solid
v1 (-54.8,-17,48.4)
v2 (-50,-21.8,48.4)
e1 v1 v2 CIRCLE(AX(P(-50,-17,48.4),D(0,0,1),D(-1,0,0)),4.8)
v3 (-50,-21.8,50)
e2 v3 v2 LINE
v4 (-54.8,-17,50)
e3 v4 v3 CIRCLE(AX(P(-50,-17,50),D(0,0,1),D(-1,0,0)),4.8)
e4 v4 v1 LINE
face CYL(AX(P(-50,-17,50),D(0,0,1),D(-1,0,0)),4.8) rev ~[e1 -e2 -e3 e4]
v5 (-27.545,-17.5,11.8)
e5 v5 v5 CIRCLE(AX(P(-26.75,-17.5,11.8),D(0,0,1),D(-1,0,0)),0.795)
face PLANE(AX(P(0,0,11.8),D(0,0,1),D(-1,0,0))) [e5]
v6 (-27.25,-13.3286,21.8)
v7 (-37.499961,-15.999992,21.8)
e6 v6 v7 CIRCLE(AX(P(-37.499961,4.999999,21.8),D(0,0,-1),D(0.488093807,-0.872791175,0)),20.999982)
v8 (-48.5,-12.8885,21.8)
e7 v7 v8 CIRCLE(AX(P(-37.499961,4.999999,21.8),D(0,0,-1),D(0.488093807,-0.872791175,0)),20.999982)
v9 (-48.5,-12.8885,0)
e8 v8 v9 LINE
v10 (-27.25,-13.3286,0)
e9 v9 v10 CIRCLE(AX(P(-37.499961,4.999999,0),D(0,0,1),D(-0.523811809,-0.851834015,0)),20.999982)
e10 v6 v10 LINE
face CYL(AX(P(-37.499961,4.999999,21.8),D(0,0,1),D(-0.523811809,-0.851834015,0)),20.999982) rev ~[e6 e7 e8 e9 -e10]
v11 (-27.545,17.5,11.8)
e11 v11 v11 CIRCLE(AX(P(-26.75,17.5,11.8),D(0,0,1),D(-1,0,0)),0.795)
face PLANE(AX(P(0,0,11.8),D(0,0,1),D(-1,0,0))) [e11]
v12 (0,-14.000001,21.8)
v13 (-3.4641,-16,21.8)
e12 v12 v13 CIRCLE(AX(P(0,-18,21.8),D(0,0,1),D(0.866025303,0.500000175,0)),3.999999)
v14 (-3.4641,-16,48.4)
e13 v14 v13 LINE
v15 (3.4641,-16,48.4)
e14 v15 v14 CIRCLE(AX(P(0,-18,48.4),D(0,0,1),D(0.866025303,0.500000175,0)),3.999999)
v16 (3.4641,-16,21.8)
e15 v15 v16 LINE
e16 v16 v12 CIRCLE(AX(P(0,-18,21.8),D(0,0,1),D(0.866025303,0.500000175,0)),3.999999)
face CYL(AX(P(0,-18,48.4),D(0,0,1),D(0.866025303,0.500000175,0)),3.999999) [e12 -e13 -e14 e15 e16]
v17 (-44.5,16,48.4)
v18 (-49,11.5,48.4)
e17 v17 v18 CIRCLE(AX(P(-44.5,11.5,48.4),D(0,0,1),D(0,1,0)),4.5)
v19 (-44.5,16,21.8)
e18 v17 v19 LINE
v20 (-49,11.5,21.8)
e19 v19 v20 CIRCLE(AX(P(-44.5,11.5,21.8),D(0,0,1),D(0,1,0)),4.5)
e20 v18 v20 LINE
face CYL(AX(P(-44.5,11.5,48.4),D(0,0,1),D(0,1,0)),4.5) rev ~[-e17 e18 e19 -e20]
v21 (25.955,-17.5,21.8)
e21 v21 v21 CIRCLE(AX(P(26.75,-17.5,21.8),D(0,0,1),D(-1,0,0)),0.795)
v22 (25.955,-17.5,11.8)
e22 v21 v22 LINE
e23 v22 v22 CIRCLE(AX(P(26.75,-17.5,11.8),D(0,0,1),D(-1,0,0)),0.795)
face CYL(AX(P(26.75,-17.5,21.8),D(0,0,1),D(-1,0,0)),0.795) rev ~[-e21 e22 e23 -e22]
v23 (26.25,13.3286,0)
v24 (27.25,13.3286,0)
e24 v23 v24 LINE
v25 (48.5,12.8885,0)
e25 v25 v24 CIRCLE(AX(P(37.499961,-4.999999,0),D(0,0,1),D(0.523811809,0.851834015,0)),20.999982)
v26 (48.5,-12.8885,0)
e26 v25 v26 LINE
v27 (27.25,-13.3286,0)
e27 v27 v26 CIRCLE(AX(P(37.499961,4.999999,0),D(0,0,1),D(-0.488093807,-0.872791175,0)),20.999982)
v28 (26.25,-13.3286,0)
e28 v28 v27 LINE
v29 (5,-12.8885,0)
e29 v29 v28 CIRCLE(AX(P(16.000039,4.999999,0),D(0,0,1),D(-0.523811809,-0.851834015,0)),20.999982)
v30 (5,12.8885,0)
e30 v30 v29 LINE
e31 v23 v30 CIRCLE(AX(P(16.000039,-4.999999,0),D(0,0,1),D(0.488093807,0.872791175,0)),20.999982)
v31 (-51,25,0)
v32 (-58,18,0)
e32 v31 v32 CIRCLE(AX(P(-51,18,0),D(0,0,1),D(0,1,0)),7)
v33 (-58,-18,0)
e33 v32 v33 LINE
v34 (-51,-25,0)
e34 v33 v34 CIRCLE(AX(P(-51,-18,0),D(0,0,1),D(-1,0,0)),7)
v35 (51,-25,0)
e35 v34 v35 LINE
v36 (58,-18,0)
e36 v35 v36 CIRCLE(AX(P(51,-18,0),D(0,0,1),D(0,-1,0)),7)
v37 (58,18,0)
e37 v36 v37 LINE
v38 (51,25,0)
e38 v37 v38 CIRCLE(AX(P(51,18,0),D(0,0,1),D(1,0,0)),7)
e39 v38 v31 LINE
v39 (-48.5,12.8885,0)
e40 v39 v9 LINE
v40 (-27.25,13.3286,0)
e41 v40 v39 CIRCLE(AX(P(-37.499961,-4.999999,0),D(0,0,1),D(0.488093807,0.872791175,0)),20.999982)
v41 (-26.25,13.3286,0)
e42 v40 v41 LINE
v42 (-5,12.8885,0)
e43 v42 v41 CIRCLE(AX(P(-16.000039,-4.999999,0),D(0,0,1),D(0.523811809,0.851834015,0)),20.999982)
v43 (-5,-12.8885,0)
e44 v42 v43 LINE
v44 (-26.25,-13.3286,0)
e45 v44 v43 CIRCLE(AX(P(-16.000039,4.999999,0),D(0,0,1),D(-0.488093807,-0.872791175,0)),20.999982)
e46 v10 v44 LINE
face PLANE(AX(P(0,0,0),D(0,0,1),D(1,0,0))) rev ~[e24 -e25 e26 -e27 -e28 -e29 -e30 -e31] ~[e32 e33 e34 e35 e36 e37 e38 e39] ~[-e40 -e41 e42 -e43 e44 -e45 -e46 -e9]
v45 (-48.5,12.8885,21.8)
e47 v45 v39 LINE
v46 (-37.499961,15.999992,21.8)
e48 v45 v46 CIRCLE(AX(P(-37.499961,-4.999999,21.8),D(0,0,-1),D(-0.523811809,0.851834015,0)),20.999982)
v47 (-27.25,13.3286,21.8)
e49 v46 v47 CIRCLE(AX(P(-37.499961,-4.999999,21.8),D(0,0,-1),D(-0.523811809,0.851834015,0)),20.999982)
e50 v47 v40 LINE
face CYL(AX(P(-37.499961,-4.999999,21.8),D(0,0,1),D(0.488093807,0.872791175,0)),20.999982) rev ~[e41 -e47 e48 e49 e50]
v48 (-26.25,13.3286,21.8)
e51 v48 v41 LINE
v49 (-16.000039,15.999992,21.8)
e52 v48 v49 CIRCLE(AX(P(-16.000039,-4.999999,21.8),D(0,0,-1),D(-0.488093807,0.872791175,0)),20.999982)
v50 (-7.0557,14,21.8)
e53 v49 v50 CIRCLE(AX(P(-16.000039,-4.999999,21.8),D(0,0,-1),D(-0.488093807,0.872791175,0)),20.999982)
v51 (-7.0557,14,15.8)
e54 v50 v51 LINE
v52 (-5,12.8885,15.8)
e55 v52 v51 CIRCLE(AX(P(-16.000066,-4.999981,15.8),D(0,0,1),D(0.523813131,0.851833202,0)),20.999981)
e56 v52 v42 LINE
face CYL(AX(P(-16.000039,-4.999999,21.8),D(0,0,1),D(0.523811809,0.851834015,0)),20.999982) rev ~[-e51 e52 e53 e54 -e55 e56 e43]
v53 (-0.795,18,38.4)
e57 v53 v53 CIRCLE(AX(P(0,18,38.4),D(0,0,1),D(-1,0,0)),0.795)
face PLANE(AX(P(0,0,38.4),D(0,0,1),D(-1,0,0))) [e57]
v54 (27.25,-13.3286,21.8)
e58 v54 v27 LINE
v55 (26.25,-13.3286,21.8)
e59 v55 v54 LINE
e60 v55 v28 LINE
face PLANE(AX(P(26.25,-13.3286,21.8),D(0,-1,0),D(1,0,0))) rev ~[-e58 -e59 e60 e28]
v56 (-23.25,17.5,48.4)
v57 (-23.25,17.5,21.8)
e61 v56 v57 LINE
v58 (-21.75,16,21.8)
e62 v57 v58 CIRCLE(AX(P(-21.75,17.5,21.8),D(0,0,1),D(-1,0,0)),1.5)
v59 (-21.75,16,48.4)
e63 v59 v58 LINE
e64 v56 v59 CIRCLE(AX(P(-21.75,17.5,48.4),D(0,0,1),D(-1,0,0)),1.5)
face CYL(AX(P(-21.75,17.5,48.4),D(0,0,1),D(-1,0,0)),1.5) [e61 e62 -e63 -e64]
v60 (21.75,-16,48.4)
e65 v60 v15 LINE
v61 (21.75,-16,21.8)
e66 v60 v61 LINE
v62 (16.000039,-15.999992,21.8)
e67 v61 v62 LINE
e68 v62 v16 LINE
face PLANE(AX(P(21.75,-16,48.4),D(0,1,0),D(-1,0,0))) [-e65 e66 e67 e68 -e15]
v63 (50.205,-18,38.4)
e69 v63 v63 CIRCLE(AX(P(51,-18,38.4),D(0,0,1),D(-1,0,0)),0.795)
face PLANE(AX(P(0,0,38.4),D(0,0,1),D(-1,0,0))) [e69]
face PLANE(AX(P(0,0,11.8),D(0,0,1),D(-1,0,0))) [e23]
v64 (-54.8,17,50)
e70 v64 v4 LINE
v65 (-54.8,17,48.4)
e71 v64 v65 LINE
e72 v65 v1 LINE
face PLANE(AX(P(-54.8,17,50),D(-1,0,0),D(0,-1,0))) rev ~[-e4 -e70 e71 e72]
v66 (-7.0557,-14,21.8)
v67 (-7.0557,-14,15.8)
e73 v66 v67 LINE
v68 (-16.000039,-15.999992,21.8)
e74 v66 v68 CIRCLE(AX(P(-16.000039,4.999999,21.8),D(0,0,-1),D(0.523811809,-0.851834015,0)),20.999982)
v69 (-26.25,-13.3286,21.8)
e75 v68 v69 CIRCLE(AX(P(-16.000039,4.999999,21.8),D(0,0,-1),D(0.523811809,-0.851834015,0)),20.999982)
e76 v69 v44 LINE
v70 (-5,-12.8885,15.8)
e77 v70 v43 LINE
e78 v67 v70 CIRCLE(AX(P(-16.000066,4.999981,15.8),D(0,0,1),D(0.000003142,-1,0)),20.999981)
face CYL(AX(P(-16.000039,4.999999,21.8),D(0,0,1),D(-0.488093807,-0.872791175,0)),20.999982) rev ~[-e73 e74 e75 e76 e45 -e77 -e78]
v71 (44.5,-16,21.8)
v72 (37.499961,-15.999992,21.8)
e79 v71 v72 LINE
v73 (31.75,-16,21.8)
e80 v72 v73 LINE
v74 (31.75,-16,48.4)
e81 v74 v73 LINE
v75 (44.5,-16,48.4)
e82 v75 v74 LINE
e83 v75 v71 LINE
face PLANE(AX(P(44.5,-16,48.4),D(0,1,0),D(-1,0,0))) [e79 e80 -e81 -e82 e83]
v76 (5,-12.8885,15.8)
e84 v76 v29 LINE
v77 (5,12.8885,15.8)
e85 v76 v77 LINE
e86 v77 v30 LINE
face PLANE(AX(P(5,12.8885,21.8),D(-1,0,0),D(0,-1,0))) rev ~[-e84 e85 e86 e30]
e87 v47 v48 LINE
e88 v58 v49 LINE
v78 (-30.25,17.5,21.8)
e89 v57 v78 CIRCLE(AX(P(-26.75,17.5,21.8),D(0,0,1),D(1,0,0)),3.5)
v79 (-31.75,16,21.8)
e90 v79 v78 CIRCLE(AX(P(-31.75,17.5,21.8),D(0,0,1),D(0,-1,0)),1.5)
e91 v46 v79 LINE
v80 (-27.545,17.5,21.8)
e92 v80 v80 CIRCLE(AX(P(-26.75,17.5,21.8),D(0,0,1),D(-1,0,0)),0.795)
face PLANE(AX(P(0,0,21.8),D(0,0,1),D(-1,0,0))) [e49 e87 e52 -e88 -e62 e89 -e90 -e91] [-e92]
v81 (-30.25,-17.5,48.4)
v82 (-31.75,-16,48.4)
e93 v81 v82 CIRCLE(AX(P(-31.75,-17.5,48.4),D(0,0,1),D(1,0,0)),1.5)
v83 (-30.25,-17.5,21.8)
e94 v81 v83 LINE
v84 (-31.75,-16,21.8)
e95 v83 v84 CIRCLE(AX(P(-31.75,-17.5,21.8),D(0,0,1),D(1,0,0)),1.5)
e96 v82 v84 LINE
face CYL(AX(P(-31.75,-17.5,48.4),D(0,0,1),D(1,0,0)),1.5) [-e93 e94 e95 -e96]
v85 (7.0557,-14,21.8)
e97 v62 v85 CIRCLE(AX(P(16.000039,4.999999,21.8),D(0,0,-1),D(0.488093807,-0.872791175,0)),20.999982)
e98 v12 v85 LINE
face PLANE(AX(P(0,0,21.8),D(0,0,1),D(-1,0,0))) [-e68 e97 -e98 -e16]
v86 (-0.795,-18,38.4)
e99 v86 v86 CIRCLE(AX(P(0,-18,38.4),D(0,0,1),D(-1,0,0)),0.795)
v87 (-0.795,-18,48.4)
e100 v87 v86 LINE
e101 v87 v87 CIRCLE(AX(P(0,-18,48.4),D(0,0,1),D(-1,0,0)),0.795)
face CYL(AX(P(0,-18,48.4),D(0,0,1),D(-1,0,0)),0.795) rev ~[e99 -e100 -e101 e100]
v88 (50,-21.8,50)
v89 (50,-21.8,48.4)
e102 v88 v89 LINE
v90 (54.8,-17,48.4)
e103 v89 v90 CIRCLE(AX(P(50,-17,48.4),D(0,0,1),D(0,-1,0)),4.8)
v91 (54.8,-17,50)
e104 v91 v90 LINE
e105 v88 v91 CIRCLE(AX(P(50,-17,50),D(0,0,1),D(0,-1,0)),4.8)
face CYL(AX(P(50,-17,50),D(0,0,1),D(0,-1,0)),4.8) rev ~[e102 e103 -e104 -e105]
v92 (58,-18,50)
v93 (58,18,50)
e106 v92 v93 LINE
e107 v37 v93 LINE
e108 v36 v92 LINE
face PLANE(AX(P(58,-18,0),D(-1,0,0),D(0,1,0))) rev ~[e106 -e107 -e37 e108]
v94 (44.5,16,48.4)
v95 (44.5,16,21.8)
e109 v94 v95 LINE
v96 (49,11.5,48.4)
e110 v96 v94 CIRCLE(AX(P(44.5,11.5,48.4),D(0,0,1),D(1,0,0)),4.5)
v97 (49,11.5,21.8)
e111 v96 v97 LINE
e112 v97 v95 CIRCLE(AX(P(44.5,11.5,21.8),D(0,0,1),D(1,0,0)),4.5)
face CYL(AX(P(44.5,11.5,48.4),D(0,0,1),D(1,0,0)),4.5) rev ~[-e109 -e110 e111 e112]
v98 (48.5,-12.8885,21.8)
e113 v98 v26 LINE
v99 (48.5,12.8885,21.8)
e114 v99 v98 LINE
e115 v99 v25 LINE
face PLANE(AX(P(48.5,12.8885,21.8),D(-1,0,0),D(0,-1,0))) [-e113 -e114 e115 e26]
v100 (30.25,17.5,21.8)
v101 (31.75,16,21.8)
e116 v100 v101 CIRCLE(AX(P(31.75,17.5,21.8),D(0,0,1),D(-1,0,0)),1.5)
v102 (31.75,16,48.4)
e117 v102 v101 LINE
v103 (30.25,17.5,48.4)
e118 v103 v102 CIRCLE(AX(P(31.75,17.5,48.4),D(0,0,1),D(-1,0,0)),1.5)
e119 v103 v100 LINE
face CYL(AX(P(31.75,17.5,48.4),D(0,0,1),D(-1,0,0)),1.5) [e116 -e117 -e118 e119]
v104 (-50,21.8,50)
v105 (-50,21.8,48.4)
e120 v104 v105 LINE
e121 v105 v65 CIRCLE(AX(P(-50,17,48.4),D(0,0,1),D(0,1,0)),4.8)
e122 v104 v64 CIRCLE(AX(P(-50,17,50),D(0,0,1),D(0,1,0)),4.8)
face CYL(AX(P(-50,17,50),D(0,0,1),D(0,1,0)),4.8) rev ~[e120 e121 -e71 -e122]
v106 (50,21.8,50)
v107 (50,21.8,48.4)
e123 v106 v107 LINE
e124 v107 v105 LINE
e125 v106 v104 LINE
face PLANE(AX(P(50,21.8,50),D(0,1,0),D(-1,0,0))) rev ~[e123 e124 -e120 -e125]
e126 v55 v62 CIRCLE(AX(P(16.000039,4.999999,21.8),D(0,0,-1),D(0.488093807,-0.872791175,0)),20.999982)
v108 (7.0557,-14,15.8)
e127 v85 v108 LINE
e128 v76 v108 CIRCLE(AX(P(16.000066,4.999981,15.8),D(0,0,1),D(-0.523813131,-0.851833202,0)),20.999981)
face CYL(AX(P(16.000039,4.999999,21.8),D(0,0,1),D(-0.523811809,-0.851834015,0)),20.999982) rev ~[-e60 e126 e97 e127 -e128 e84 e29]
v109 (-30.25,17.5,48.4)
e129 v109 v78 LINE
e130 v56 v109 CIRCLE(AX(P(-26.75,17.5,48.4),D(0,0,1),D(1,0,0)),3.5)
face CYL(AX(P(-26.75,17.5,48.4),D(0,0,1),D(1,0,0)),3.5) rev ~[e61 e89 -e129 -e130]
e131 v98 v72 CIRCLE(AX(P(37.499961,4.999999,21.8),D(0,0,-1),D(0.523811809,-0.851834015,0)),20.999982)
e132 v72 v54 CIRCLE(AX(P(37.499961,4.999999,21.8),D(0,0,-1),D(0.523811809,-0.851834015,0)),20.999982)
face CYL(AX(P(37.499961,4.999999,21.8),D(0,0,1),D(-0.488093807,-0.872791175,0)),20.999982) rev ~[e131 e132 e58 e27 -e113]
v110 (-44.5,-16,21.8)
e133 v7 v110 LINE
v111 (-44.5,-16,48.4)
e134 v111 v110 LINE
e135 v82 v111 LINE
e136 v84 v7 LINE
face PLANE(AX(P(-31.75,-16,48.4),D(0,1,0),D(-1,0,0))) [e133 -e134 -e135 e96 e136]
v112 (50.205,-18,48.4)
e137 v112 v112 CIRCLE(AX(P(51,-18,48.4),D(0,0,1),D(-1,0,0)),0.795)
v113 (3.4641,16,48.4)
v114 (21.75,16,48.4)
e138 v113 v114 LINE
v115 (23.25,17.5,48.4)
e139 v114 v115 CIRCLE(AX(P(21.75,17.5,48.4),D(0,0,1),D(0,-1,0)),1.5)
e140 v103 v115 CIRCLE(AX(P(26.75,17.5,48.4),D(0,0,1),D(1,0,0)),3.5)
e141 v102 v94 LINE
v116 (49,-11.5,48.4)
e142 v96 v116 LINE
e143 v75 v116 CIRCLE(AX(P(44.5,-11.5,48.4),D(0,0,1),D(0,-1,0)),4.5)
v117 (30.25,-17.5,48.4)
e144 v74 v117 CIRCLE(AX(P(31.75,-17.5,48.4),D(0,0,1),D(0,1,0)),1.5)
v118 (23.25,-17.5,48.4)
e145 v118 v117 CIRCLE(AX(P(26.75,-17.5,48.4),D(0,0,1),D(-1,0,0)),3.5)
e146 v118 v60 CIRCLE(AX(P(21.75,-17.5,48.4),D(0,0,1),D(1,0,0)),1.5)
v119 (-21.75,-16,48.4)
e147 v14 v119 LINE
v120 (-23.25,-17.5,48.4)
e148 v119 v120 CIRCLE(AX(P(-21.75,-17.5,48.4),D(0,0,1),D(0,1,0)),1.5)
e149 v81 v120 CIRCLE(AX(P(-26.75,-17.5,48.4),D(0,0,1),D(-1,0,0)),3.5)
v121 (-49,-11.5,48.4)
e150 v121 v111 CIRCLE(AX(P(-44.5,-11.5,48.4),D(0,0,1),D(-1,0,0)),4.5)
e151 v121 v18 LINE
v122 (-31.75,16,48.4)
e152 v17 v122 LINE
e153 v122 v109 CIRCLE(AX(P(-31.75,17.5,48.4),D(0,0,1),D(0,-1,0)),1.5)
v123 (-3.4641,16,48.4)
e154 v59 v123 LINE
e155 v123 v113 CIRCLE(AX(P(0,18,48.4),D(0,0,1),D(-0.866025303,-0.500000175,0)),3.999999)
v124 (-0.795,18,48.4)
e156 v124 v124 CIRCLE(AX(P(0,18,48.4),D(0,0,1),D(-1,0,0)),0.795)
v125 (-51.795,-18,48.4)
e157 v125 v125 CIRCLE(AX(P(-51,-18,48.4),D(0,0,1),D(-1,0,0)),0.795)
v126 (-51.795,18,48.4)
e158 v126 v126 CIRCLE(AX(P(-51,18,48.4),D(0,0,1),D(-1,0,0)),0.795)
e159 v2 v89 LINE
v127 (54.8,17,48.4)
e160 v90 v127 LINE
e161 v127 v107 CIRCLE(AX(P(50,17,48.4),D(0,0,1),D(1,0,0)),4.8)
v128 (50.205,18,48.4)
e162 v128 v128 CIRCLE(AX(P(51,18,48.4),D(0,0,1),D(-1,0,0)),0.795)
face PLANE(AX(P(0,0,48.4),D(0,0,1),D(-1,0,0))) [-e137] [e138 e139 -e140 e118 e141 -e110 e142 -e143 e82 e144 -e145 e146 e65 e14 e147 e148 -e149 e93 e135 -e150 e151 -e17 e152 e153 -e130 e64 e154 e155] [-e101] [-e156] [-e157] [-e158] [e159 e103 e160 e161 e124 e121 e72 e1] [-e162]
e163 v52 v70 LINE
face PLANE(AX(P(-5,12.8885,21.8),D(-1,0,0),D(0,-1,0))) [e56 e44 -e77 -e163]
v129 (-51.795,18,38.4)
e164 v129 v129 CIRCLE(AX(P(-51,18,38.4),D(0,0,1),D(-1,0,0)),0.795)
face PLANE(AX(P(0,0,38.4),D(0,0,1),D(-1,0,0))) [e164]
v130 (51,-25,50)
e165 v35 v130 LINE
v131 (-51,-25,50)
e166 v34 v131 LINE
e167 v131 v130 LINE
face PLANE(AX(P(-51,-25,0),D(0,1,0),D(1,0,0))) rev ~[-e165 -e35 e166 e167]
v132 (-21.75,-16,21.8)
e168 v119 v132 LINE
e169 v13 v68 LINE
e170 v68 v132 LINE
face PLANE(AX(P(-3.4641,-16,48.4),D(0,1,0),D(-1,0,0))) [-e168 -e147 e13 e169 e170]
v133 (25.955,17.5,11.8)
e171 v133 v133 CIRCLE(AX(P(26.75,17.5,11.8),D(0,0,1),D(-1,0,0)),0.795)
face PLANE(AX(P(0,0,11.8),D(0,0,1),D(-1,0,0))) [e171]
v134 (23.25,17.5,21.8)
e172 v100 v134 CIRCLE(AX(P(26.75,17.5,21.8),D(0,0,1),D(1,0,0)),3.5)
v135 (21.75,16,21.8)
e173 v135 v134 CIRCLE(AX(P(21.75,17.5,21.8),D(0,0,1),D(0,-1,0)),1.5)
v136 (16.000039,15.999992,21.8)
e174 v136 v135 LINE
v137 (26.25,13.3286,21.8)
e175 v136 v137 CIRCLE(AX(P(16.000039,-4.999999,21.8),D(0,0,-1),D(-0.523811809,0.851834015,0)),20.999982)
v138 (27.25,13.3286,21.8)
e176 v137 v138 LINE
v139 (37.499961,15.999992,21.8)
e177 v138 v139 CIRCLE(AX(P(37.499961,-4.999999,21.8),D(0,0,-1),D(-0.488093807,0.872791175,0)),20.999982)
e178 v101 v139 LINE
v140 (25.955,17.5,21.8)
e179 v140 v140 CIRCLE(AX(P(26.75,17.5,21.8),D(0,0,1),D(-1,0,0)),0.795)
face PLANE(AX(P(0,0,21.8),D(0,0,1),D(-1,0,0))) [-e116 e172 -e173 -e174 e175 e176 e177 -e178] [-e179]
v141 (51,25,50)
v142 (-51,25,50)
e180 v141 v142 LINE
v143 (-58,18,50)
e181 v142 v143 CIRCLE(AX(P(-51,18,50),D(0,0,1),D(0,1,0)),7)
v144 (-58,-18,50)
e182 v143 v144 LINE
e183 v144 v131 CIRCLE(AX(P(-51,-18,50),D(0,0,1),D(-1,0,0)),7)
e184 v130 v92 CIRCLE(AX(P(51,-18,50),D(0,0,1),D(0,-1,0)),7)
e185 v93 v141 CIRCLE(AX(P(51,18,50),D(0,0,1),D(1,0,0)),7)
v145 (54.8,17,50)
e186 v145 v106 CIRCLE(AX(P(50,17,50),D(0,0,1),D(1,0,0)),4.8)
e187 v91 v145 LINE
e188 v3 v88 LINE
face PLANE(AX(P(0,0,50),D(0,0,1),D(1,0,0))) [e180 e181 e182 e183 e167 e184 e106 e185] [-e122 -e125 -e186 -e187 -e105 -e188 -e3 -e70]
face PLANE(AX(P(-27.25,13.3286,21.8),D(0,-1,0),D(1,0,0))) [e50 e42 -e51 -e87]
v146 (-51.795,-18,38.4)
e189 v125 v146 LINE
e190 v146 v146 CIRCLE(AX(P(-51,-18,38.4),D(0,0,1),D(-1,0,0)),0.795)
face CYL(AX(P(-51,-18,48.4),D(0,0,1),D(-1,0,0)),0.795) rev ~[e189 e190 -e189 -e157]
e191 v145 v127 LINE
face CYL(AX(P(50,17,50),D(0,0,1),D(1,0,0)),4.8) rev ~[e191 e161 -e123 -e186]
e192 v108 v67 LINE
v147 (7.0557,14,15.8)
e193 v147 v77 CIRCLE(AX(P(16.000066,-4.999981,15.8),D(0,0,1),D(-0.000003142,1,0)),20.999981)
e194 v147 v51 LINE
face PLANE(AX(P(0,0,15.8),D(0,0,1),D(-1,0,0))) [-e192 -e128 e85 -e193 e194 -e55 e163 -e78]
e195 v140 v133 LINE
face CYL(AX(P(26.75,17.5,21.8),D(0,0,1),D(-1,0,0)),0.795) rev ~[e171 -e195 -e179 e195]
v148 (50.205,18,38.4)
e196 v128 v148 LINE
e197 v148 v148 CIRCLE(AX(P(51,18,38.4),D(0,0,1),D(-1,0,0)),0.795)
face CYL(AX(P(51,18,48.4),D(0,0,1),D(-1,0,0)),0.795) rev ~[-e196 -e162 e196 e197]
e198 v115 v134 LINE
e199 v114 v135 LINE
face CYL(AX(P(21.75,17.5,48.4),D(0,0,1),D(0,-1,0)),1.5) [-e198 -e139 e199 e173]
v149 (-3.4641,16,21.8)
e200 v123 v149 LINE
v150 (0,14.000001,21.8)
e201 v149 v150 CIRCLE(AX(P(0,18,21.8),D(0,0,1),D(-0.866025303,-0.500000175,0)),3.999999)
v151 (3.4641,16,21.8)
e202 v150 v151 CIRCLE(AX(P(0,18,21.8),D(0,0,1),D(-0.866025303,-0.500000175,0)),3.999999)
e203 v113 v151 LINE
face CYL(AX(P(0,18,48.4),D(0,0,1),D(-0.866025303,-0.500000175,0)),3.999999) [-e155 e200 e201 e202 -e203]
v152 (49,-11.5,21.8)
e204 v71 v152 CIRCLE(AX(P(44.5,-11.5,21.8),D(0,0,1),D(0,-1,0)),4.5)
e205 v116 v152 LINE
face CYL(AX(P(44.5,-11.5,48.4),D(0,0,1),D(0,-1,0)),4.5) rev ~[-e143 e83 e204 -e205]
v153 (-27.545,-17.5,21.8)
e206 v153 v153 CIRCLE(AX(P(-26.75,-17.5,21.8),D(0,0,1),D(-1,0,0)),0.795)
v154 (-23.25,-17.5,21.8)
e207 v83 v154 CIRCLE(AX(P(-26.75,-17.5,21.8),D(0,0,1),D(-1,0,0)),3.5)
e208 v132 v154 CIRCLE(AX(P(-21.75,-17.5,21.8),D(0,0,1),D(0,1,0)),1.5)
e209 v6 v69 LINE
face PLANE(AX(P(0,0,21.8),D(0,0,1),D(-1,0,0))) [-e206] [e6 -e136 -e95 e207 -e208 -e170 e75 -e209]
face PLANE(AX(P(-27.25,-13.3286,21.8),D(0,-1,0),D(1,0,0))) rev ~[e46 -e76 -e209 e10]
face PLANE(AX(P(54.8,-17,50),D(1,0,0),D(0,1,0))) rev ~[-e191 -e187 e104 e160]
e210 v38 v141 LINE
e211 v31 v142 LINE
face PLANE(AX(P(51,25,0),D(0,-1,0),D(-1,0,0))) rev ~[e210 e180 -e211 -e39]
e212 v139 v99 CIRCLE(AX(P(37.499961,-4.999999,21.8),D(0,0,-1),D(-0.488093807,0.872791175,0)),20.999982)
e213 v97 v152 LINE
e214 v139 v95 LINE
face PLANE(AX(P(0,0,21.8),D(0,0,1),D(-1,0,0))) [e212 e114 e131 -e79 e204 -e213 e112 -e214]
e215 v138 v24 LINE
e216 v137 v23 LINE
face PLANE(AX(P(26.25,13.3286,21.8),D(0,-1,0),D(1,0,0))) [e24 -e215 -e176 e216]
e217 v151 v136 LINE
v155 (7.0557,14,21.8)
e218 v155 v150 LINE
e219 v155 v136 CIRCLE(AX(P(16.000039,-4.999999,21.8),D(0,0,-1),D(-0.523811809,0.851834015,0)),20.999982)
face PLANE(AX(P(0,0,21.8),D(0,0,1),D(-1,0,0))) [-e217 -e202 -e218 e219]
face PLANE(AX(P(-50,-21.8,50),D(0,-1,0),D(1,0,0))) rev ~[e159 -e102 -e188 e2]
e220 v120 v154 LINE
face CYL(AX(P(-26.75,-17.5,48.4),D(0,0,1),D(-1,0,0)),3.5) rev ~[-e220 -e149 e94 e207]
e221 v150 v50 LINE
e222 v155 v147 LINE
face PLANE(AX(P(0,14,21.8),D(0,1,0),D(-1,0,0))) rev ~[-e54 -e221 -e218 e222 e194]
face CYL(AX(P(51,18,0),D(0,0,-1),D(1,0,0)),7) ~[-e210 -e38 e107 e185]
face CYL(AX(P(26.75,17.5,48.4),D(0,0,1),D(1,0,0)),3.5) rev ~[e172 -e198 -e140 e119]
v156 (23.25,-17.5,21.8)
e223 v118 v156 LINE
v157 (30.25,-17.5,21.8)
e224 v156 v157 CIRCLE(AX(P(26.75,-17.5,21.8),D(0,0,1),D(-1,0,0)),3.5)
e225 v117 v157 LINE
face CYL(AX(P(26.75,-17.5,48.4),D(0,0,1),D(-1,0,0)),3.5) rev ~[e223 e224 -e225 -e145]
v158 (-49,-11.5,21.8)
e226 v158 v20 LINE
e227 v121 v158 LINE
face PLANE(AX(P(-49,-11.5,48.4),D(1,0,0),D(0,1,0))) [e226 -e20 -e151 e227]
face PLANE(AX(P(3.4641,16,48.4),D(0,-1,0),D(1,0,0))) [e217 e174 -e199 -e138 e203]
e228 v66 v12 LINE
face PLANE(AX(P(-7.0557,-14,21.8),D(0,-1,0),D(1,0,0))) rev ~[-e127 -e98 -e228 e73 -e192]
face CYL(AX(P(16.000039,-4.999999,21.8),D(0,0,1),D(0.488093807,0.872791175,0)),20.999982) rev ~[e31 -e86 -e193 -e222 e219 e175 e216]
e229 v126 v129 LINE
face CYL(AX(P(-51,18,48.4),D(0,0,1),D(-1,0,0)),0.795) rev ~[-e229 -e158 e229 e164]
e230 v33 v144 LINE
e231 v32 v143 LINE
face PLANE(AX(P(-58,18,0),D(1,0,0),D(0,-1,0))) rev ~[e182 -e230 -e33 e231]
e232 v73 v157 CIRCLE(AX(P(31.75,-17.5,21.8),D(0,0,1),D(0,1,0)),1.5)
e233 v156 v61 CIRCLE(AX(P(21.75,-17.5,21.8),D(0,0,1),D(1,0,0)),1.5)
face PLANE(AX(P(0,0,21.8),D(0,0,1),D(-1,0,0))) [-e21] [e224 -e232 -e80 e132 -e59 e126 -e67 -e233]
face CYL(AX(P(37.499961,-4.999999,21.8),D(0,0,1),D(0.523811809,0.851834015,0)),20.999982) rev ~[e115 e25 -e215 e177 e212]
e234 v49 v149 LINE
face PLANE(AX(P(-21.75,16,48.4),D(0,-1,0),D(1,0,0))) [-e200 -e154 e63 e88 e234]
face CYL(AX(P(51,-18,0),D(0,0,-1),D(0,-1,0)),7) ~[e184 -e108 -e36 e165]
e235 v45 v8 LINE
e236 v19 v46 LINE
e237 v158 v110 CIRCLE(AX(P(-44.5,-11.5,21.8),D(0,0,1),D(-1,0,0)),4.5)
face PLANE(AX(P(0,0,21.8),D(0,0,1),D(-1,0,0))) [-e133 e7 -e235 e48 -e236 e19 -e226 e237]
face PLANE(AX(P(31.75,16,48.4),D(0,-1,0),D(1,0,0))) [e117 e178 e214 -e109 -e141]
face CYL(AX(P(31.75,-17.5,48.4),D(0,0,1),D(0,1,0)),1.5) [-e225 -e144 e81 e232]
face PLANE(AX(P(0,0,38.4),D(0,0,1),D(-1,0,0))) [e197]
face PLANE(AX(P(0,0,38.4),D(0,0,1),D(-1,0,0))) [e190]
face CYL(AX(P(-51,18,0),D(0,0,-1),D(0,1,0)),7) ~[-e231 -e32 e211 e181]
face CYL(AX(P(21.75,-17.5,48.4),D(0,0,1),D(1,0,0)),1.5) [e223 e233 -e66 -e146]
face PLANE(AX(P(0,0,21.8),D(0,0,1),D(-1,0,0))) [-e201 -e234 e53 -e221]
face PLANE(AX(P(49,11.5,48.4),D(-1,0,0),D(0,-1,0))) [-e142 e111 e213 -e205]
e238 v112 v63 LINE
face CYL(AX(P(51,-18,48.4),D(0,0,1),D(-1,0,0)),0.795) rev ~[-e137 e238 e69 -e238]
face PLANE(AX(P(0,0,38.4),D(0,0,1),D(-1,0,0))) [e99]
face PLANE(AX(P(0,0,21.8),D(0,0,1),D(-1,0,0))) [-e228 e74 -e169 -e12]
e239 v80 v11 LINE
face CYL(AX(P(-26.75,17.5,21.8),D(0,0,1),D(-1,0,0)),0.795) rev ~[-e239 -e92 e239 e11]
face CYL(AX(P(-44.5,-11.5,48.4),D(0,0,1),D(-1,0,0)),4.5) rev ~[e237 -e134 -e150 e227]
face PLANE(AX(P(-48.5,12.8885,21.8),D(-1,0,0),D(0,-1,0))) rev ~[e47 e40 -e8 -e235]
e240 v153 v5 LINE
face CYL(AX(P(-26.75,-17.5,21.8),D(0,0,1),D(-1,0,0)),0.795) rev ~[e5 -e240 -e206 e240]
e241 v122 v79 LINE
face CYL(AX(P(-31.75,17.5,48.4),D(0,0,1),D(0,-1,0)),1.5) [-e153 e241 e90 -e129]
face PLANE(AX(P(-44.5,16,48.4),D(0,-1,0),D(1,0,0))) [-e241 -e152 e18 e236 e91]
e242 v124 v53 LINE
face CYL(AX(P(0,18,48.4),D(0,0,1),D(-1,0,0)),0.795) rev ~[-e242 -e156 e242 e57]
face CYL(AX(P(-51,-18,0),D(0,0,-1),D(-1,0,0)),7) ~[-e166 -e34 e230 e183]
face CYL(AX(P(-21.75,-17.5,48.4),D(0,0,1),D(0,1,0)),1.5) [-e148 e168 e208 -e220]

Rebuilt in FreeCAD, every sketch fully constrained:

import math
import FreeCAD as App
import Part
import Sketcher

doc = App.newDocument("Part")
body = doc.addObject("PartDesign::Body", "Body")

# Sketch on XY plane
sketch1 = body.newObject("Sketcher::SketchObject", "Sketch")
sketch1.AttachmentSupport = (doc.getObject("XY_Plane"), [""])
sketch1.MapMode = "FlatFace"
sketch1.addGeometry(Part.ArcOfCircle(Part.Circle(App.Vector(51, 18, 0), App.Vector(0, 0, 1), 7), math.radians(0), math.radians(90)), False)
sketch1.addGeometry(Part.LineSegment(App.Vector(51, 25, 0), App.Vector(-51, 25, 0)), False)
sketch1.addGeometry(Part.ArcOfCircle(Part.Circle(App.Vector(-51, 18, 0), App.Vector(0, 0, 1), 7), math.radians(90), math.radians(180)), False)
sketch1.addGeometry(Part.LineSegment(App.Vector(-58, 18, 0), App.Vector(-58, -18, 0)), False)
sketch1.addGeometry(Part.ArcOfCircle(Part.Circle(App.Vector(-51, -18, 0), App.Vector(0, 0, 1), 7), math.radians(180), math.radians(270)), False)
sketch1.addGeometry(Part.LineSegment(App.Vector(-51, -25, 0), App.Vector(51, -25, 0)), False)
sketch1.addGeometry(Part.ArcOfCircle(Part.Circle(App.Vector(51, -18, 0), App.Vector(0, 0, 1), 7), math.radians(-90), math.radians(0)), False)
sketch1.addGeometry(Part.LineSegment(App.Vector(58, -18, 0), App.Vector(58, 18, 0)), False)
sketch1.addConstraint(Sketcher.Constraint("Tangent", 0, 2, 1, 1))
sketch1.addConstraint(Sketcher.Constraint("Tangent", 1, 2, 2, 1))
sketch1.addConstraint(Sketcher.Constraint("Tangent", 2, 2, 3, 1))
sketch1.addConstraint(Sketcher.Constraint("Tangent", 3, 2, 4, 1))
sketch1.addConstraint(Sketcher.Constraint("Tangent", 4, 2, 5, 1))
sketch1.addConstraint(Sketcher.Constraint("Tangent", 5, 2, 6, 1))
sketch1.addConstraint(Sketcher.Constraint("Tangent", 6, 2, 7, 1))
sketch1.addConstraint(Sketcher.Constraint("Tangent", 7, 2, 0, 1))
sketch1.addConstraint(Sketcher.Constraint("Horizontal", 1))
sketch1.addConstraint(Sketcher.Constraint("Vertical", 3))
sketch1.addConstraint(Sketcher.Constraint("Horizontal", 5))
sketch1.addConstraint(Sketcher.Constraint("Vertical", 7))
sketch1.addConstraint(Sketcher.Constraint("Equal", 0, 2))
sketch1.addConstraint(Sketcher.Constraint("Equal", 2, 4))
sketch1.addConstraint(Sketcher.Constraint("Equal", 4, 6))
sketch1.addConstraint(Sketcher.Constraint("Symmetric", 0, 3, 4, 3, -1, 1))
sketch1.addConstraint(Sketcher.Constraint("Radius", 0, 7.0))
sketch1.addConstraint(Sketcher.Constraint("DistanceY", 4, 2, 1, 2, 50.0))
sketch1.addConstraint(Sketcher.Constraint("DistanceX", 1, 2, 1, 1, 102.0))
pad1 = body.newObject("PartDesign::Pad", "Pad")
pad1.Profile = sketch1
pad1.Length = 50

# Sketch on XY plane
sketch2 = body.newObject("Sketcher::SketchObject", "Sketch001")
sketch2.AttachmentSupport = (doc.getObject("XY_Plane"), [""])
sketch2.MapMode = "FlatFace"
sketch2.AttachmentOffset = App.Placement(App.Vector(0, 0, 50), App.Rotation())
sketch2.addGeometry(Part.ArcOfCircle(Part.Circle(App.Vector(50, 17, 0), App.Vector(0, 0, 1), 4.8), math.radians(0), math.radians(90)), False)
sketch2.addGeometry(Part.LineSegment(App.Vector(50, 21.8, 0), App.Vector(-50, 21.8, 0)), False)
sketch2.addGeometry(Part.ArcOfCircle(Part.Circle(App.Vector(-50, 17, 0), App.Vector(0, 0, 1), 4.8), math.radians(90), math.radians(180)), False)
sketch2.addGeometry(Part.LineSegment(App.Vector(-54.8, 17, 0), App.Vector(-54.8, -17, 0)), False)
sketch2.addGeometry(Part.ArcOfCircle(Part.Circle(App.Vector(-50, -17, 0), App.Vector(0, 0, 1), 4.8), math.radians(180), math.radians(270)), False)
sketch2.addGeometry(Part.LineSegment(App.Vector(-50, -21.8, 0), App.Vector(50, -21.8, 0)), False)
sketch2.addGeometry(Part.ArcOfCircle(Part.Circle(App.Vector(50, -17, 0), App.Vector(0, 0, 1), 4.8), math.radians(-90), math.radians(0)), False)
sketch2.addGeometry(Part.LineSegment(App.Vector(54.8, -17, 0), App.Vector(54.8, 17, 0)), False)
sketch2.addConstraint(Sketcher.Constraint("Tangent", 0, 2, 1, 1))
sketch2.addConstraint(Sketcher.Constraint("Tangent", 1, 2, 2, 1))
sketch2.addConstraint(Sketcher.Constraint("Tangent", 2, 2, 3, 1))
sketch2.addConstraint(Sketcher.Constraint("Tangent", 3, 2, 4, 1))
sketch2.addConstraint(Sketcher.Constraint("Tangent", 4, 2, 5, 1))
sketch2.addConstraint(Sketcher.Constraint("Tangent", 5, 2, 6, 1))
sketch2.addConstraint(Sketcher.Constraint("Tangent", 6, 2, 7, 1))
sketch2.addConstraint(Sketcher.Constraint("Tangent", 7, 2, 0, 1))
sketch2.addConstraint(Sketcher.Constraint("Horizontal", 1))
sketch2.addConstraint(Sketcher.Constraint("Vertical", 3))
sketch2.addConstraint(Sketcher.Constraint("Horizontal", 5))
sketch2.addConstraint(Sketcher.Constraint("Vertical", 7))
sketch2.addConstraint(Sketcher.Constraint("Equal", 0, 2))
sketch2.addConstraint(Sketcher.Constraint("Equal", 2, 4))
sketch2.addConstraint(Sketcher.Constraint("Equal", 4, 6))
sketch2.addConstraint(Sketcher.Constraint("Symmetric", 0, 3, 4, 3, -1, 1))
sketch2.addConstraint(Sketcher.Constraint("Radius", 0, 4.8))
sketch2.addConstraint(Sketcher.Constraint("DistanceY", 4, 2, 1, 2, 43.6))
sketch2.addConstraint(Sketcher.Constraint("DistanceX", 1, 2, 1, 1, 100.0))
pocket1 = body.newObject("PartDesign::Pocket", "Pocket")
pocket1.Profile = sketch2
pocket1.Length = 1.6

# Sketch on XY plane
sketch3 = body.newObject("Sketcher::SketchObject", "Sketch002")
sketch3.AttachmentSupport = (doc.getObject("XY_Plane"), [""])
sketch3.MapMode = "FlatFace"
sketch3.AttachmentOffset = App.Placement(App.Vector(0, 0, 48.4), App.Rotation())
sketch3.addGeometry(Part.LineSegment(App.Vector(-49, 11.5, 0), App.Vector(-49, -11.5, 0)), False)
sketch3.addGeometry(Part.ArcOfCircle(Part.Circle(App.Vector(-44.5, -11.5, 0), App.Vector(0, 0, 1), 4.5), math.radians(180), math.radians(270)), False)
sketch3.addGeometry(Part.LineSegment(App.Vector(-44.5, -16, 0), App.Vector(-31.75, -16, 0)), False)
sketch3.addGeometry(Part.ArcOfCircle(Part.Circle(App.Vector(-31.75, -17.5, 0), App.Vector(0, 0, 1), 1.5), math.radians(0), math.radians(90)), False)
sketch3.addGeometry(Part.ArcOfCircle(Part.Circle(App.Vector(-26.75, -17.5, 0), App.Vector(0, 0, 1), 3.5), math.radians(180), math.radians(360)), False)
sketch3.addGeometry(Part.ArcOfCircle(Part.Circle(App.Vector(-21.75, -17.5, 0), App.Vector(0, 0, 1), 1.5), math.radians(90), math.radians(180)), False)
sketch3.addGeometry(Part.LineSegment(App.Vector(-21.75, -16, 0), App.Vector(-3.4641, -16, 0)), False)
sketch3.addGeometry(Part.ArcOfCircle(Part.Circle(App.Vector(0, -18, 0), App.Vector(0, 0, 1), 3.999999), math.radians(30.000012), math.radians(149.999988)), False)
sketch3.addGeometry(Part.LineSegment(App.Vector(3.4641, -16, 0), App.Vector(21.75, -16, 0)), False)
sketch3.addGeometry(Part.ArcOfCircle(Part.Circle(App.Vector(21.75, -17.5, 0), App.Vector(0, 0, 1), 1.5), math.radians(0), math.radians(90)), False)
sketch3.addGeometry(Part.ArcOfCircle(Part.Circle(App.Vector(26.75, -17.5, 0), App.Vector(0, 0, 1), 3.5), math.radians(180), math.radians(360)), False)
sketch3.addGeometry(Part.ArcOfCircle(Part.Circle(App.Vector(31.75, -17.5, 0), App.Vector(0, 0, 1), 1.5), math.radians(90), math.radians(180)), False)
sketch3.addGeometry(Part.LineSegment(App.Vector(31.75, -16, 0), App.Vector(44.5, -16, 0)), False)
sketch3.addGeometry(Part.ArcOfCircle(Part.Circle(App.Vector(44.5, -11.5, 0), App.Vector(0, 0, 1), 4.5), math.radians(-90), math.radians(0)), False)
sketch3.addGeometry(Part.LineSegment(App.Vector(49, -11.5, 0), App.Vector(49, 11.5, 0)), False)
sketch3.addGeometry(Part.ArcOfCircle(Part.Circle(App.Vector(44.5, 11.5, 0), App.Vector(0, 0, 1), 4.5), math.radians(0), math.radians(90)), False)
sketch3.addGeometry(Part.LineSegment(App.Vector(44.5, 16, 0), App.Vector(31.75, 16, 0)), False)
sketch3.addGeometry(Part.ArcOfCircle(Part.Circle(App.Vector(31.75, 17.5, 0), App.Vector(0, 0, 1), 1.5), math.radians(180), math.radians(270)), False)
sketch3.addGeometry(Part.ArcOfCircle(Part.Circle(App.Vector(26.75, 17.5, 0), App.Vector(0, 0, 1), 3.5), math.radians(0), math.radians(180)), False)
sketch3.addGeometry(Part.ArcOfCircle(Part.Circle(App.Vector(21.75, 17.5, 0), App.Vector(0, 0, 1), 1.5), math.radians(-90), math.radians(0)), False)
sketch3.addGeometry(Part.LineSegment(App.Vector(21.75, 16, 0), App.Vector(3.4641, 16, 0)), False)
sketch3.addGeometry(Part.ArcOfCircle(Part.Circle(App.Vector(0, 18, 0), App.Vector(0, 0, 1), 3.999999), math.radians(-149.999988), math.radians(-30.000012)), False)
sketch3.addGeometry(Part.LineSegment(App.Vector(-3.4641, 16, 0), App.Vector(-21.75, 16, 0)), False)
sketch3.addGeometry(Part.ArcOfCircle(Part.Circle(App.Vector(-21.75, 17.5, 0), App.Vector(0, 0, 1), 1.5), math.radians(180), math.radians(270)), False)
sketch3.addGeometry(Part.ArcOfCircle(Part.Circle(App.Vector(-26.75, 17.5, 0), App.Vector(0, 0, 1), 3.5), math.radians(0), math.radians(180)), False)
sketch3.addGeometry(Part.ArcOfCircle(Part.Circle(App.Vector(-31.75, 17.5, 0), App.Vector(0, 0, 1), 1.5), math.radians(-90), math.radians(0)), False)
sketch3.addGeometry(Part.LineSegment(App.Vector(-31.75, 16, 0), App.Vector(-44.5, 16, 0)), False)
sketch3.addGeometry(Part.ArcOfCircle(Part.Circle(App.Vector(-44.5, 11.5, 0), App.Vector(0, 0, 1), 4.5), math.radians(90), math.radians(180)), False)
sketch3.addConstraint(Sketcher.Constraint("Tangent", 0, 2, 1, 1))
sketch3.addConstraint(Sketcher.Constraint("Tangent", 1, 2, 2, 1))
sketch3.addConstraint(Sketcher.Constraint("Tangent", 2, 2, 3, 2))
sketch3.addConstraint(Sketcher.Constraint("Tangent", 3, 1, 4, 1))
sketch3.addConstraint(Sketcher.Constraint("Tangent", 4, 2, 5, 2))
sketch3.addConstraint(Sketcher.Constraint("Tangent", 5, 1, 6, 1))
sketch3.addConstraint(Sketcher.Constraint("Coincident", 6, 2, 7, 2))
sketch3.addConstraint(Sketcher.Constraint("Coincident", 7, 1, 8, 1))
sketch3.addConstraint(Sketcher.Constraint("Tangent", 8, 2, 9, 2))
sketch3.addConstraint(Sketcher.Constraint("Tangent", 9, 1, 10, 1))
sketch3.addConstraint(Sketcher.Constraint("Tangent", 10, 2, 11, 2))
sketch3.addConstraint(Sketcher.Constraint("Tangent", 11, 1, 12, 1))
sketch3.addConstraint(Sketcher.Constraint("Tangent", 12, 2, 13, 1))
sketch3.addConstraint(Sketcher.Constraint("Tangent", 13, 2, 14, 1))
sketch3.addConstraint(Sketcher.Constraint("Tangent", 14, 2, 15, 1))
sketch3.addConstraint(Sketcher.Constraint("Tangent", 15, 2, 16, 1))
sketch3.addConstraint(Sketcher.Constraint("Tangent", 16, 2, 17, 2))
sketch3.addConstraint(Sketcher.Constraint("Tangent", 17, 1, 18, 1))
sketch3.addConstraint(Sketcher.Constraint("Tangent", 18, 2, 19, 2))
sketch3.addConstraint(Sketcher.Constraint("Tangent", 19, 1, 20, 1))
sketch3.addConstraint(Sketcher.Constraint("Coincident", 20, 2, 21, 2))
sketch3.addConstraint(Sketcher.Constraint("Coincident", 21, 1, 22, 1))
sketch3.addConstraint(Sketcher.Constraint("Tangent", 22, 2, 23, 2))
sketch3.addConstraint(Sketcher.Constraint("Tangent", 23, 1, 24, 1))
sketch3.addConstraint(Sketcher.Constraint("Tangent", 24, 2, 25, 2))
sketch3.addConstraint(Sketcher.Constraint("Tangent", 25, 1, 26, 1))
sketch3.addConstraint(Sketcher.Constraint("Tangent", 26, 2, 27, 1))
sketch3.addConstraint(Sketcher.Constraint("Tangent", 27, 2, 0, 1))
sketch3.addConstraint(Sketcher.Constraint("Vertical", 0))
sketch3.addConstraint(Sketcher.Constraint("Horizontal", 2))
sketch3.addConstraint(Sketcher.Constraint("Horizontal", 6))
sketch3.addConstraint(Sketcher.Constraint("Horizontal", 8))
sketch3.addConstraint(Sketcher.Constraint("Horizontal", 12))
sketch3.addConstraint(Sketcher.Constraint("Vertical", 14))
sketch3.addConstraint(Sketcher.Constraint("Horizontal", 16))
sketch3.addConstraint(Sketcher.Constraint("Horizontal", 20))
sketch3.addConstraint(Sketcher.Constraint("Horizontal", 22))
sketch3.addConstraint(Sketcher.Constraint("Horizontal", 26))
sketch3.addConstraint(Sketcher.Constraint("Equal", 3, 5))
sketch3.addConstraint(Sketcher.Constraint("Equal", 5, 9))
sketch3.addConstraint(Sketcher.Constraint("Equal", 4, 10))
sketch3.addConstraint(Sketcher.Constraint("Equal", 9, 11))
sketch3.addConstraint(Sketcher.Constraint("Equal", 1, 13))
sketch3.addConstraint(Sketcher.Constraint("Equal", 13, 15))
sketch3.addConstraint(Sketcher.Constraint("Equal", 11, 17))
sketch3.addConstraint(Sketcher.Constraint("Equal", 10, 18))
sketch3.addConstraint(Sketcher.Constraint("Equal", 17, 19))
sketch3.addConstraint(Sketcher.Constraint("Equal", 7, 21))
sketch3.addConstraint(Sketcher.Constraint("Equal", 19, 23))
sketch3.addConstraint(Sketcher.Constraint("Equal", 18, 24))
sketch3.addConstraint(Sketcher.Constraint("Equal", 23, 25))
sketch3.addConstraint(Sketcher.Constraint("Equal", 15, 27))
sketch3.addConstraint(Sketcher.Constraint("Symmetric", 1, 3, 15, 3, -1, 1))
sketch3.addConstraint(Sketcher.Constraint("Symmetric", 4, 3, 18, 3, -1, 1))
sketch3.addConstraint(Sketcher.Constraint("Symmetric", 7, 3, 21, 3, -1, 1))
sketch3.addConstraint(Sketcher.Constraint("Symmetric", 9, 3, 23, 3, -1, 1))
sketch3.addConstraint(Sketcher.Constraint("Symmetric", 5, 3, 9, 3, -2))
sketch3.addConstraint(Sketcher.Constraint("Symmetric", 20, 2, 21, 1, -2))
sketch3.addConstraint(Sketcher.Constraint("Horizontal", 3, 3, 4, 3))
sketch3.addConstraint(Sketcher.Constraint("Horizontal", 4, 3, 5, 3))
sketch3.addConstraint(Sketcher.Constraint("Horizontal", 9, 3, 10, 3))
sketch3.addConstraint(Sketcher.Constraint("Horizontal", 10, 3, 11, 3))
sketch3.addConstraint(Sketcher.Constraint("Horizontal", 23, 3, 24, 3))
sketch3.addConstraint(Sketcher.Constraint("Horizontal", 24, 3, 25, 3))
sketch3.addConstraint(Sketcher.Constraint("Radius", 7, 4.0))
sketch3.addConstraint(Sketcher.Constraint("Radius", 1, 4.5))
sketch3.addConstraint(Sketcher.Constraint("Radius", 4, 3.5))
sketch3.addConstraint(Sketcher.Constraint("DistanceY", 11, 3, 17, 3, 35.0))
sketch3.addConstraint(Sketcher.Constraint("DistanceY", 7, 3, 21, 3, 36.0))
sketch3.addConstraint(Sketcher.Constraint("Radius", 3, 1.5))
sketch3.addConstraint(Sketcher.Constraint("DistanceX", 3, 3, 9, 3, 53.5))
sketch3.addConstraint(Sketcher.Constraint("DistanceX", 0, 2, -1, 1, 49.0))
pocket2 = body.newObject("PartDesign::Pocket", "Pocket001")
pocket2.Profile = sketch3
pocket2.Length = 26.6

# Sketch on XY plane
sketch4 = body.newObject("Sketcher::SketchObject", "Sketch003")
sketch4.AttachmentSupport = (doc.getObject("XY_Plane"), [""])
sketch4.MapMode = "FlatFace"
sketch4.AttachmentOffset = App.Placement(App.Vector(0, 0, 21.8), App.Rotation())
sketch4.addGeometry(Part.ArcOfCircle(Part.Circle(App.Vector(37.5, 5, 0), App.Vector(0, 0, 1), 21.000002), math.radians(-119.215461), math.radians(-58.411802)), False)
sketch4.addGeometry(Part.LineSegment(App.Vector(48.5, -12.8885, 0), App.Vector(48.5, 12.8885, 0)), False)
sketch4.addGeometry(Part.ArcOfCircle(Part.Circle(App.Vector(37.5, -5, 0), App.Vector(0, 0, 1), 20.999963), math.radians(58.411802), math.radians(119.215461)), False)
sketch4.addGeometry(Part.LineSegment(App.Vector(27.25, 13.3286, 0), App.Vector(26.25, 13.3286, 0)), False)
sketch4.addGeometry(Part.ArcOfCircle(Part.Circle(App.Vector(16, -5, 0), App.Vector(0, 0, 1), 21.000002), math.radians(60.784539), math.radians(121.588198)), False)
sketch4.addGeometry(Part.LineSegment(App.Vector(5, 12.8885, 0), App.Vector(5, -12.8885, 0)), False)
sketch4.addGeometry(Part.ArcOfCircle(Part.Circle(App.Vector(16, 5, 0), App.Vector(0, 0, 1), 20.999963), math.radians(-121.588198), math.radians(-60.784539)), False)
sketch4.addGeometry(Part.LineSegment(App.Vector(26.25, -13.3286, 0), App.Vector(27.25, -13.3286, 0)), False)
sketch4.addGeometry(Part.ArcOfCircle(Part.Circle(App.Vector(-16, 5, 0), App.Vector(0, 0, 1), 21.000002), math.radians(-119.215461), math.radians(-58.411802)), False)
sketch4.addGeometry(Part.LineSegment(App.Vector(-5, -12.8885, 0), App.Vector(-5, 12.8885, 0)), False)
sketch4.addGeometry(Part.ArcOfCircle(Part.Circle(App.Vector(-16, -5, 0), App.Vector(0, 0, 1), 20.999963), math.radians(58.411802), math.radians(119.215461)), False)
sketch4.addGeometry(Part.LineSegment(App.Vector(-26.25, 13.3286, 0), App.Vector(-27.25, 13.3286, 0)), False)
sketch4.addGeometry(Part.ArcOfCircle(Part.Circle(App.Vector(-37.5, -5, 0), App.Vector(0, 0, 1), 21.000002), math.radians(60.784539), math.radians(121.588198)), False)
sketch4.addGeometry(Part.LineSegment(App.Vector(-48.5, 12.8885, 0), App.Vector(-48.5, -12.8885, 0)), False)
sketch4.addGeometry(Part.ArcOfCircle(Part.Circle(App.Vector(-37.5, 5, 0), App.Vector(0, 0, 1), 20.999963), math.radians(-121.588198), math.radians(-60.784539)), False)
sketch4.addGeometry(Part.LineSegment(App.Vector(-27.25, -13.3286, 0), App.Vector(-26.25, -13.3286, 0)), False)
sketch4.addConstraint(Sketcher.Constraint("Coincident", 0, 2, 1, 1))
sketch4.addConstraint(Sketcher.Constraint("Coincident", 1, 2, 2, 1))
sketch4.addConstraint(Sketcher.Constraint("Coincident", 2, 2, 3, 1))
sketch4.addConstraint(Sketcher.Constraint("Coincident", 3, 2, 4, 1))
sketch4.addConstraint(Sketcher.Constraint("Coincident", 4, 2, 5, 1))
sketch4.addConstraint(Sketcher.Constraint("Coincident", 5, 2, 6, 1))
sketch4.addConstraint(Sketcher.Constraint("Coincident", 6, 2, 7, 1))
sketch4.addConstraint(Sketcher.Constraint("Coincident", 7, 2, 0, 1))
sketch4.addConstraint(Sketcher.Constraint("Coincident", 8, 2, 9, 1))
sketch4.addConstraint(Sketcher.Constraint("Coincident", 9, 2, 10, 1))
sketch4.addConstraint(Sketcher.Constraint("Coincident", 10, 2, 11, 1))
sketch4.addConstraint(Sketcher.Constraint("Coincident", 11, 2, 12, 1))
sketch4.addConstraint(Sketcher.Constraint("Coincident", 12, 2, 13, 1))
sketch4.addConstraint(Sketcher.Constraint("Coincident", 13, 2, 14, 1))
sketch4.addConstraint(Sketcher.Constraint("Coincident", 14, 2, 15, 1))
sketch4.addConstraint(Sketcher.Constraint("Coincident", 15, 2, 8, 1))
sketch4.addConstraint(Sketcher.Constraint("Vertical", 1))
sketch4.addConstraint(Sketcher.Constraint("Horizontal", 3))
sketch4.addConstraint(Sketcher.Constraint("Vertical", 5))
sketch4.addConstraint(Sketcher.Constraint("Horizontal", 7))
sketch4.addConstraint(Sketcher.Constraint("Vertical", 9))
sketch4.addConstraint(Sketcher.Constraint("Horizontal", 11))
sketch4.addConstraint(Sketcher.Constraint("Vertical", 13))
sketch4.addConstraint(Sketcher.Constraint("Horizontal", 15))
sketch4.addConstraint(Sketcher.Constraint("Equal", 0, 2))
sketch4.addConstraint(Sketcher.Constraint("Equal", 2, 4))
sketch4.addConstraint(Sketcher.Constraint("Equal", 4, 6))
sketch4.addConstraint(Sketcher.Constraint("Equal", 6, 8))
sketch4.addConstraint(Sketcher.Constraint("Equal", 8, 10))
sketch4.addConstraint(Sketcher.Constraint("Equal", 10, 12))
sketch4.addConstraint(Sketcher.Constraint("Equal", 12, 14))
sketch4.addConstraint(Sketcher.Constraint("Symmetric", 4, 3, 8, 3, -1, 1))
sketch4.addConstraint(Sketcher.Constraint("Symmetric", 6, 3, 10, 3, -1, 1))
sketch4.addConstraint(Sketcher.Constraint("Symmetric", 0, 3, 12, 3, -1, 1))
sketch4.addConstraint(Sketcher.Constraint("Symmetric", 2, 3, 14, 3, -1, 1))
sketch4.addConstraint(Sketcher.Constraint("Symmetric", 6, 3, 8, 3, -2))
sketch4.addConstraint(Sketcher.Constraint("Symmetric", 2, 3, 12, 3, -2))
sketch4.addConstraint(Sketcher.Constraint("Horizontal", 2, 3, 4, 3))
sketch4.addConstraint(Sketcher.Constraint("Horizontal", 1, 2, 4, 2))
sketch4.addConstraint(Sketcher.Constraint("Horizontal", 5, 2, 8, 2))
sketch4.addConstraint(Sketcher.Constraint("Horizontal", 3, 2, 10, 2))
sketch4.addConstraint(Sketcher.Constraint("Horizontal", 9, 2, 12, 2))
sketch4.addConstraint(Sketcher.Constraint("Horizontal", 7, 2, 14, 2))
sketch4.addConstraint(Sketcher.Constraint("Vertical", 3, 2, 6, 2))
sketch4.addConstraint(Sketcher.Constraint("DistanceX", 3, 2, 3, 1, 1.0))
sketch4.addConstraint(Sketcher.Constraint("Radius", 0, 21.0))
sketch4.addConstraint(Sketcher.Constraint("DistanceY", 2, 3, 0, 3, 10.0))
sketch4.addConstraint(Sketcher.Constraint("DistanceX", 8, 3, 6, 3, 32.0))
sketch4.addConstraint(Sketcher.Constraint("DistanceX", 12, 3, 2, 3, 75.0))
sketch4.addConstraint(Sketcher.Constraint("DistanceX", 2, 3, 0, 2, 11.0))
pocket3 = body.newObject("PartDesign::Pocket", "Pocket002")
pocket3.Profile = sketch4
pocket3.Length = 23.4

# Sketch on XY plane
sketch5 = body.newObject("Sketcher::SketchObject", "Sketch004")
sketch5.AttachmentSupport = (doc.getObject("XY_Plane"), [""])
sketch5.MapMode = "FlatFace"
sketch5.AttachmentOffset = App.Placement(App.Vector(0, 0, 21.8), App.Rotation())
sketch5.addGeometry(Part.ArcOfCircle(Part.Circle(App.Vector(16, 5, 0), App.Vector(0, 0, 1), 20.999963), math.radians(-121.588198), math.radians(-115.208835)), False)
sketch5.addGeometry(Part.LineSegment(App.Vector(5, -12.8885, 0), App.Vector(5, 12.8885, 0)), False)
sketch5.addGeometry(Part.ArcOfCircle(Part.Circle(App.Vector(16, -5, 0), App.Vector(0, 0, 1), 21), math.radians(115.208835), math.radians(121.588198)), False)
sketch5.addGeometry(Part.LineSegment(App.Vector(7.0557, 14, 0), App.Vector(-7.0557, 14, 0)), False)
sketch5.addGeometry(Part.ArcOfCircle(Part.Circle(App.Vector(-16, -5, 0), App.Vector(0, 0, 1), 20.999963), math.radians(58.411802), math.radians(64.791165)), False)
sketch5.addGeometry(Part.LineSegment(App.Vector(-5, 12.8885, 0), App.Vector(-5, -12.8885, 0)), False)
sketch5.addGeometry(Part.ArcOfCircle(Part.Circle(App.Vector(-16, 5, 0), App.Vector(0, 0, 1), 21), math.radians(-64.791165), math.radians(-58.411802)), False)
sketch5.addGeometry(Part.LineSegment(App.Vector(-7.0557, -14, 0), App.Vector(7.0557, -14, 0)), False)
sketch5.addConstraint(Sketcher.Constraint("Coincident", 0, 1, 1, 1))
sketch5.addConstraint(Sketcher.Constraint("Coincident", 1, 2, 2, 2))
sketch5.addConstraint(Sketcher.Constraint("Coincident", 2, 1, 3, 1))
sketch5.addConstraint(Sketcher.Constraint("Coincident", 3, 2, 4, 2))
sketch5.addConstraint(Sketcher.Constraint("Coincident", 4, 1, 5, 1))
sketch5.addConstraint(Sketcher.Constraint("Coincident", 5, 2, 6, 2))
sketch5.addConstraint(Sketcher.Constraint("Coincident", 6, 1, 7, 1))
sketch5.addConstraint(Sketcher.Constraint("Coincident", 7, 2, 0, 2))
sketch5.addConstraint(Sketcher.Constraint("Vertical", 1))
sketch5.addConstraint(Sketcher.Constraint("Horizontal", 3))
sketch5.addConstraint(Sketcher.Constraint("Vertical", 5))
sketch5.addConstraint(Sketcher.Constraint("Horizontal", 7))
sketch5.addConstraint(Sketcher.Constraint("Equal", 0, 2))
sketch5.addConstraint(Sketcher.Constraint("Equal", 2, 4))
sketch5.addConstraint(Sketcher.Constraint("Equal", 4, 6))
sketch5.addConstraint(Sketcher.Constraint("Symmetric", 0, 3, 4, 3, -1, 1))
sketch5.addConstraint(Sketcher.Constraint("Symmetric", 2, 3, 6, 3, -1, 1))
sketch5.addConstraint(Sketcher.Constraint("Symmetric", 2, 3, 4, 3, -2))
sketch5.addConstraint(Sketcher.Constraint("Horizontal", 1, 2, 4, 1))
sketch5.addConstraint(Sketcher.Constraint("Vertical", 3, 2, 6, 1))
sketch5.addConstraint(Sketcher.Constraint("Radius", 0, 21.0))
sketch5.addConstraint(Sketcher.Constraint("DistanceX", -1, 1, 0, 3, 16.0))
sketch5.addConstraint(Sketcher.Constraint("DistanceY", -1, 1, 0, 3, 5.0))
sketch5.addConstraint(Sketcher.Constraint("DistanceX", -1, 1, 0, 1, 5.0))
sketch5.addConstraint(Sketcher.Constraint("DistanceY", -1, 1, 2, 1, 14.0))
pocket4 = body.newObject("PartDesign::Pocket", "Pocket003")
pocket4.Profile = sketch5
pocket4.Length = 6

# Sketch on XY plane
sketch6 = body.newObject("Sketcher::SketchObject", "Sketch005")
sketch6.AttachmentSupport = (doc.getObject("XY_Plane"), [""])
sketch6.MapMode = "FlatFace"
sketch6.AttachmentOffset = App.Placement(App.Vector(0, 0, 48.4), App.Rotation())
sketch6.addGeometry(Part.Circle(App.Vector(-51, -18, 0), App.Vector(0, 0, 1), 0.795), False)
sketch6.addGeometry(Part.Circle(App.Vector(-51, 18, 0), App.Vector(0, 0, 1), 0.795), False)
sketch6.addGeometry(Part.Circle(App.Vector(0, 18, 0), App.Vector(0, 0, 1), 0.795), False)
sketch6.addGeometry(Part.Circle(App.Vector(0, -18, 0), App.Vector(0, 0, 1), 0.795), False)
sketch6.addGeometry(Part.Circle(App.Vector(51, -18, 0), App.Vector(0, 0, 1), 0.795), False)
sketch6.addGeometry(Part.Circle(App.Vector(51, 18, 0), App.Vector(0, 0, 1), 0.795), False)
sketch6.addConstraint(Sketcher.Constraint("Equal", 0, 1))
sketch6.addConstraint(Sketcher.Constraint("Equal", 1, 2))
sketch6.addConstraint(Sketcher.Constraint("Equal", 2, 3))
sketch6.addConstraint(Sketcher.Constraint("Equal", 3, 4))
sketch6.addConstraint(Sketcher.Constraint("Equal", 4, 5))
sketch6.addConstraint(Sketcher.Constraint("Symmetric", 2, 3, 3, 3, -1, 1))
sketch6.addConstraint(Sketcher.Constraint("Symmetric", 1, 3, 4, 3, -1, 1))
sketch6.addConstraint(Sketcher.Constraint("Symmetric", 0, 3, 5, 3, -1, 1))
sketch6.addConstraint(Sketcher.Constraint("Symmetric", 0, 3, 4, 3, -2))
sketch6.addConstraint(Sketcher.Constraint("PointOnObject", 2, 3, -2))
sketch6.addConstraint(Sketcher.Constraint("Horizontal", 1, 3, 2, 3))
sketch6.addConstraint(Sketcher.Constraint("Diameter", 0, 1.59))
sketch6.addConstraint(Sketcher.Constraint("DistanceY", 0, 3, 1, 3, 36.0))
sketch6.addConstraint(Sketcher.Constraint("DistanceX", 0, 3, 4, 3, 102.0))
pocket5 = body.newObject("PartDesign::Pocket", "Pocket004")
pocket5.Profile = sketch6
pocket5.Length = 10

# Sketch on XY plane
sketch7 = body.newObject("Sketcher::SketchObject", "Sketch006")
sketch7.AttachmentSupport = (doc.getObject("XY_Plane"), [""])
sketch7.MapMode = "FlatFace"
sketch7.AttachmentOffset = App.Placement(App.Vector(0, 0, 21.8), App.Rotation())
sketch7.addGeometry(Part.Circle(App.Vector(-26.75, 17.5, 0), App.Vector(0, 0, 1), 0.795), False)
sketch7.addGeometry(Part.Circle(App.Vector(-26.75, -17.5, 0), App.Vector(0, 0, 1), 0.795), False)
sketch7.addGeometry(Part.Circle(App.Vector(26.75, 17.5, 0), App.Vector(0, 0, 1), 0.795), False)
sketch7.addGeometry(Part.Circle(App.Vector(26.75, -17.5, 0), App.Vector(0, 0, 1), 0.795), False)
sketch7.addConstraint(Sketcher.Constraint("Equal", 0, 1))
sketch7.addConstraint(Sketcher.Constraint("Equal", 1, 2))
sketch7.addConstraint(Sketcher.Constraint("Equal", 2, 3))
sketch7.addConstraint(Sketcher.Constraint("Symmetric", 1, 3, 2, 3, -1, 1))
sketch7.addConstraint(Sketcher.Constraint("Symmetric", 0, 3, 3, 3, -1, 1))
sketch7.addConstraint(Sketcher.Constraint("Symmetric", 0, 3, 2, 3, -2))
sketch7.addConstraint(Sketcher.Constraint("Diameter", 0, 1.59))
sketch7.addConstraint(Sketcher.Constraint("DistanceY", 1, 3, 0, 3, 35.0))
sketch7.addConstraint(Sketcher.Constraint("DistanceX", 0, 3, 2, 3, 53.5))
pocket6 = body.newObject("PartDesign::Pocket", "Pocket005")
pocket6.Profile = sketch7
pocket6.Length = 10

doc.recompute()
